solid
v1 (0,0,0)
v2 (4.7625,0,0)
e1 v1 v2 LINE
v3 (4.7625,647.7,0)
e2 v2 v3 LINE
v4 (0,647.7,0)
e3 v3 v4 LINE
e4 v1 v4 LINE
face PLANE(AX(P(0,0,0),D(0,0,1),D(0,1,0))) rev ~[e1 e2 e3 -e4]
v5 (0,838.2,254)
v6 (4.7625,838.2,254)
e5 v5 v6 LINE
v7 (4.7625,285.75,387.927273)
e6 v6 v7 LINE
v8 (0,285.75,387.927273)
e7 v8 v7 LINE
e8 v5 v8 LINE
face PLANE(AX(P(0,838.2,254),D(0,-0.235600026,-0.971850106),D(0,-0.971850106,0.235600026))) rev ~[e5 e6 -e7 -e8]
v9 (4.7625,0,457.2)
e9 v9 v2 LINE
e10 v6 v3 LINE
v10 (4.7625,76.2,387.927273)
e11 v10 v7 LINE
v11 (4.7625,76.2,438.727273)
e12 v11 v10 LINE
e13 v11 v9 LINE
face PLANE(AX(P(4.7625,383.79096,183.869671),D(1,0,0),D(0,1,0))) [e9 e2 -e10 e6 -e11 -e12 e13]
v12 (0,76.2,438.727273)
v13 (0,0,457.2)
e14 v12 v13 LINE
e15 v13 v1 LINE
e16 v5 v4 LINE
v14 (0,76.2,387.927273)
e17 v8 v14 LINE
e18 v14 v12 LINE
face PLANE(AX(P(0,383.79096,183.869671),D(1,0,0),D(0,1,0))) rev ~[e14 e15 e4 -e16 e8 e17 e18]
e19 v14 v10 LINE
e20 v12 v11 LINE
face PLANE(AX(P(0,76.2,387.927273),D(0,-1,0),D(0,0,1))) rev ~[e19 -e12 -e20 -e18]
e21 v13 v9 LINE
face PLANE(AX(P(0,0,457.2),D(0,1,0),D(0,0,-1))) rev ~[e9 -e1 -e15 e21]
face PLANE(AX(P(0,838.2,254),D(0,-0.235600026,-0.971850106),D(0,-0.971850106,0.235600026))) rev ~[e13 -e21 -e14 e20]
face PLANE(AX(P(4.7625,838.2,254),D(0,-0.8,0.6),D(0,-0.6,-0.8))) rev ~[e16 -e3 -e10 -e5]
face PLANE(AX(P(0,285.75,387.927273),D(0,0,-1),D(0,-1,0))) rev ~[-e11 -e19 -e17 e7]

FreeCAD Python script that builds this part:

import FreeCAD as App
import Part
import Sketcher

V = App.Vector
Q = App.Units.Quantity

doc = App.newDocument("Part")
body = doc.addObject("PartDesign::Body", "Body")

sketch1 = body.newObject("Sketcher::SketchObject", "Sketch")
sketch1.AttachmentSupport = (doc.getObject("YZ_Plane"), [""])
sketch1.MapMode = "FlatFace"
sketch1.addGeometry([
    Part.LineSegment(V(0, 457.2, 0), V(0, 0, 0)),
    Part.LineSegment(V(0, 0, 0), V(838.2, 0, 0)),
    Part.LineSegment(V(838.2, 0, 0), V(838.2, 254, 0)),
    Part.LineSegment(V(838.2, 254, 0), V(0, 457.2, 0)),
], False)
sketch1.addConstraint([
    Sketcher.Constraint("Coincident", 0, 2, 1, 1),
    Sketcher.Constraint("Coincident", 1, 2, 2, 1),
    Sketcher.Constraint("Coincident", 2, 2, 3, 1),
    Sketcher.Constraint("Coincident", 3, 2, 0, 1),
    Sketcher.Constraint("Vertical", 0),
    Sketcher.Constraint("Horizontal", 1),
    Sketcher.Constraint("Vertical", 2),
    Sketcher.Constraint("Coincident", 0, 2, -1, 1),
    Sketcher.Constraint("DistanceX", 1, 1, 1, 2, Q("33 in")),
    Sketcher.Constraint("DistanceY", 0, 2, 0, 1, Q("18 in")),
    Sketcher.Constraint("DistanceY", 2, 1, 2, 2, Q("10 in")),
])
pad1 = body.newObject("PartDesign::Pad", "Pad")
pad1.Profile = sketch1
pad1.Length = Q("0.1875 in")

sketch2 = body.newObject("Sketcher::SketchObject", "Sketch001")
sketch2.AttachmentSupport = (doc.getObject("YZ_Plane"), [""])
sketch2.MapMode = "FlatFace"
sketch2.addGeometry([
    Part.LineSegment(V(76.2, 387.927273, 0), V(76.2, 438.727273, 0)),
    Part.LineSegment(V(76.2, 438.727273, 0), V(285.75, 387.927273, 0)),
    Part.LineSegment(V(285.75, 387.927273, 0), V(76.2, 387.927273, 0)),
], False)
sketch2.addConstraint([
    Sketcher.Constraint("Coincident", 0, 2, 1, 1),
    Sketcher.Constraint("Coincident", 1, 2, 2, 1),
    Sketcher.Constraint("Coincident", 2, 2, 0, 1),
    Sketcher.Constraint("Vertical", 0),
    Sketcher.Constraint("Horizontal", 2),
    Sketcher.Constraint("DistanceY", 0, 1, 0, 2, Q("2 in")),
    Sketcher.Constraint("DistanceX", -1, 1, 0, 2, Q("3 in")),
    Sketcher.Constraint("DistanceX", 2, 2, 2, 1, Q("8.25 in")),
    Sketcher.Constraint("DistanceY", -1, 1, 0, 2, Q("438.727273 mm")),
])
pocket1 = body.newObject("PartDesign::Pocket", "Pocket")
pocket1.Profile = sketch2
pocket1.Type = "ThroughAll"
pocket1.Reversed = True

sketch3 = body.newObject("Sketcher::SketchObject", "Sketch002")
sketch3.AttachmentSupport = (doc.getObject("YZ_Plane"), [""])
sketch3.MapMode = "FlatFace"
sketch3.AttachmentOffset = App.Placement(V(0, 0, 0.1875 * 25.4), App.Rotation())
sketch3.addGeometry([
    Part.LineSegment(V(838.2, 0, 0), V(838.2, 254, 0)),
    Part.LineSegment(V(838.2, 254, 0), V(647.7, 0, 0)),
    Part.LineSegment(V(647.7, 0, 0), V(838.2, 0, 0)),
], False)
sketch3.addConstraint([
    Sketcher.Constraint("Coincident", 0, 2, 1, 1),
    Sketcher.Constraint("Coincident", 1, 2, 2, 1),
    Sketcher.Constraint("Coincident", 2, 2, 0, 1),
    Sketcher.Constraint("Vertical", 0),
    Sketcher.Constraint("Horizontal", 2),
    Sketcher.Constraint("PointOnObject", 1, 2, -1),
    Sketcher.Constraint("DistanceY", 0, 1, 0, 2, Q("10 in")),
    Sketcher.Constraint("DistanceX", 2, 1, 2, 2, Q("7.5 in")),
    Sketcher.Constraint("DistanceX", -1, 1, 0, 2, Q("33 in")),
])
pocket2 = body.newObject("PartDesign::Pocket", "Pocket001")
pocket2.Profile = sketch3
pocket2.Type = "ThroughAll"

doc.recompute()
